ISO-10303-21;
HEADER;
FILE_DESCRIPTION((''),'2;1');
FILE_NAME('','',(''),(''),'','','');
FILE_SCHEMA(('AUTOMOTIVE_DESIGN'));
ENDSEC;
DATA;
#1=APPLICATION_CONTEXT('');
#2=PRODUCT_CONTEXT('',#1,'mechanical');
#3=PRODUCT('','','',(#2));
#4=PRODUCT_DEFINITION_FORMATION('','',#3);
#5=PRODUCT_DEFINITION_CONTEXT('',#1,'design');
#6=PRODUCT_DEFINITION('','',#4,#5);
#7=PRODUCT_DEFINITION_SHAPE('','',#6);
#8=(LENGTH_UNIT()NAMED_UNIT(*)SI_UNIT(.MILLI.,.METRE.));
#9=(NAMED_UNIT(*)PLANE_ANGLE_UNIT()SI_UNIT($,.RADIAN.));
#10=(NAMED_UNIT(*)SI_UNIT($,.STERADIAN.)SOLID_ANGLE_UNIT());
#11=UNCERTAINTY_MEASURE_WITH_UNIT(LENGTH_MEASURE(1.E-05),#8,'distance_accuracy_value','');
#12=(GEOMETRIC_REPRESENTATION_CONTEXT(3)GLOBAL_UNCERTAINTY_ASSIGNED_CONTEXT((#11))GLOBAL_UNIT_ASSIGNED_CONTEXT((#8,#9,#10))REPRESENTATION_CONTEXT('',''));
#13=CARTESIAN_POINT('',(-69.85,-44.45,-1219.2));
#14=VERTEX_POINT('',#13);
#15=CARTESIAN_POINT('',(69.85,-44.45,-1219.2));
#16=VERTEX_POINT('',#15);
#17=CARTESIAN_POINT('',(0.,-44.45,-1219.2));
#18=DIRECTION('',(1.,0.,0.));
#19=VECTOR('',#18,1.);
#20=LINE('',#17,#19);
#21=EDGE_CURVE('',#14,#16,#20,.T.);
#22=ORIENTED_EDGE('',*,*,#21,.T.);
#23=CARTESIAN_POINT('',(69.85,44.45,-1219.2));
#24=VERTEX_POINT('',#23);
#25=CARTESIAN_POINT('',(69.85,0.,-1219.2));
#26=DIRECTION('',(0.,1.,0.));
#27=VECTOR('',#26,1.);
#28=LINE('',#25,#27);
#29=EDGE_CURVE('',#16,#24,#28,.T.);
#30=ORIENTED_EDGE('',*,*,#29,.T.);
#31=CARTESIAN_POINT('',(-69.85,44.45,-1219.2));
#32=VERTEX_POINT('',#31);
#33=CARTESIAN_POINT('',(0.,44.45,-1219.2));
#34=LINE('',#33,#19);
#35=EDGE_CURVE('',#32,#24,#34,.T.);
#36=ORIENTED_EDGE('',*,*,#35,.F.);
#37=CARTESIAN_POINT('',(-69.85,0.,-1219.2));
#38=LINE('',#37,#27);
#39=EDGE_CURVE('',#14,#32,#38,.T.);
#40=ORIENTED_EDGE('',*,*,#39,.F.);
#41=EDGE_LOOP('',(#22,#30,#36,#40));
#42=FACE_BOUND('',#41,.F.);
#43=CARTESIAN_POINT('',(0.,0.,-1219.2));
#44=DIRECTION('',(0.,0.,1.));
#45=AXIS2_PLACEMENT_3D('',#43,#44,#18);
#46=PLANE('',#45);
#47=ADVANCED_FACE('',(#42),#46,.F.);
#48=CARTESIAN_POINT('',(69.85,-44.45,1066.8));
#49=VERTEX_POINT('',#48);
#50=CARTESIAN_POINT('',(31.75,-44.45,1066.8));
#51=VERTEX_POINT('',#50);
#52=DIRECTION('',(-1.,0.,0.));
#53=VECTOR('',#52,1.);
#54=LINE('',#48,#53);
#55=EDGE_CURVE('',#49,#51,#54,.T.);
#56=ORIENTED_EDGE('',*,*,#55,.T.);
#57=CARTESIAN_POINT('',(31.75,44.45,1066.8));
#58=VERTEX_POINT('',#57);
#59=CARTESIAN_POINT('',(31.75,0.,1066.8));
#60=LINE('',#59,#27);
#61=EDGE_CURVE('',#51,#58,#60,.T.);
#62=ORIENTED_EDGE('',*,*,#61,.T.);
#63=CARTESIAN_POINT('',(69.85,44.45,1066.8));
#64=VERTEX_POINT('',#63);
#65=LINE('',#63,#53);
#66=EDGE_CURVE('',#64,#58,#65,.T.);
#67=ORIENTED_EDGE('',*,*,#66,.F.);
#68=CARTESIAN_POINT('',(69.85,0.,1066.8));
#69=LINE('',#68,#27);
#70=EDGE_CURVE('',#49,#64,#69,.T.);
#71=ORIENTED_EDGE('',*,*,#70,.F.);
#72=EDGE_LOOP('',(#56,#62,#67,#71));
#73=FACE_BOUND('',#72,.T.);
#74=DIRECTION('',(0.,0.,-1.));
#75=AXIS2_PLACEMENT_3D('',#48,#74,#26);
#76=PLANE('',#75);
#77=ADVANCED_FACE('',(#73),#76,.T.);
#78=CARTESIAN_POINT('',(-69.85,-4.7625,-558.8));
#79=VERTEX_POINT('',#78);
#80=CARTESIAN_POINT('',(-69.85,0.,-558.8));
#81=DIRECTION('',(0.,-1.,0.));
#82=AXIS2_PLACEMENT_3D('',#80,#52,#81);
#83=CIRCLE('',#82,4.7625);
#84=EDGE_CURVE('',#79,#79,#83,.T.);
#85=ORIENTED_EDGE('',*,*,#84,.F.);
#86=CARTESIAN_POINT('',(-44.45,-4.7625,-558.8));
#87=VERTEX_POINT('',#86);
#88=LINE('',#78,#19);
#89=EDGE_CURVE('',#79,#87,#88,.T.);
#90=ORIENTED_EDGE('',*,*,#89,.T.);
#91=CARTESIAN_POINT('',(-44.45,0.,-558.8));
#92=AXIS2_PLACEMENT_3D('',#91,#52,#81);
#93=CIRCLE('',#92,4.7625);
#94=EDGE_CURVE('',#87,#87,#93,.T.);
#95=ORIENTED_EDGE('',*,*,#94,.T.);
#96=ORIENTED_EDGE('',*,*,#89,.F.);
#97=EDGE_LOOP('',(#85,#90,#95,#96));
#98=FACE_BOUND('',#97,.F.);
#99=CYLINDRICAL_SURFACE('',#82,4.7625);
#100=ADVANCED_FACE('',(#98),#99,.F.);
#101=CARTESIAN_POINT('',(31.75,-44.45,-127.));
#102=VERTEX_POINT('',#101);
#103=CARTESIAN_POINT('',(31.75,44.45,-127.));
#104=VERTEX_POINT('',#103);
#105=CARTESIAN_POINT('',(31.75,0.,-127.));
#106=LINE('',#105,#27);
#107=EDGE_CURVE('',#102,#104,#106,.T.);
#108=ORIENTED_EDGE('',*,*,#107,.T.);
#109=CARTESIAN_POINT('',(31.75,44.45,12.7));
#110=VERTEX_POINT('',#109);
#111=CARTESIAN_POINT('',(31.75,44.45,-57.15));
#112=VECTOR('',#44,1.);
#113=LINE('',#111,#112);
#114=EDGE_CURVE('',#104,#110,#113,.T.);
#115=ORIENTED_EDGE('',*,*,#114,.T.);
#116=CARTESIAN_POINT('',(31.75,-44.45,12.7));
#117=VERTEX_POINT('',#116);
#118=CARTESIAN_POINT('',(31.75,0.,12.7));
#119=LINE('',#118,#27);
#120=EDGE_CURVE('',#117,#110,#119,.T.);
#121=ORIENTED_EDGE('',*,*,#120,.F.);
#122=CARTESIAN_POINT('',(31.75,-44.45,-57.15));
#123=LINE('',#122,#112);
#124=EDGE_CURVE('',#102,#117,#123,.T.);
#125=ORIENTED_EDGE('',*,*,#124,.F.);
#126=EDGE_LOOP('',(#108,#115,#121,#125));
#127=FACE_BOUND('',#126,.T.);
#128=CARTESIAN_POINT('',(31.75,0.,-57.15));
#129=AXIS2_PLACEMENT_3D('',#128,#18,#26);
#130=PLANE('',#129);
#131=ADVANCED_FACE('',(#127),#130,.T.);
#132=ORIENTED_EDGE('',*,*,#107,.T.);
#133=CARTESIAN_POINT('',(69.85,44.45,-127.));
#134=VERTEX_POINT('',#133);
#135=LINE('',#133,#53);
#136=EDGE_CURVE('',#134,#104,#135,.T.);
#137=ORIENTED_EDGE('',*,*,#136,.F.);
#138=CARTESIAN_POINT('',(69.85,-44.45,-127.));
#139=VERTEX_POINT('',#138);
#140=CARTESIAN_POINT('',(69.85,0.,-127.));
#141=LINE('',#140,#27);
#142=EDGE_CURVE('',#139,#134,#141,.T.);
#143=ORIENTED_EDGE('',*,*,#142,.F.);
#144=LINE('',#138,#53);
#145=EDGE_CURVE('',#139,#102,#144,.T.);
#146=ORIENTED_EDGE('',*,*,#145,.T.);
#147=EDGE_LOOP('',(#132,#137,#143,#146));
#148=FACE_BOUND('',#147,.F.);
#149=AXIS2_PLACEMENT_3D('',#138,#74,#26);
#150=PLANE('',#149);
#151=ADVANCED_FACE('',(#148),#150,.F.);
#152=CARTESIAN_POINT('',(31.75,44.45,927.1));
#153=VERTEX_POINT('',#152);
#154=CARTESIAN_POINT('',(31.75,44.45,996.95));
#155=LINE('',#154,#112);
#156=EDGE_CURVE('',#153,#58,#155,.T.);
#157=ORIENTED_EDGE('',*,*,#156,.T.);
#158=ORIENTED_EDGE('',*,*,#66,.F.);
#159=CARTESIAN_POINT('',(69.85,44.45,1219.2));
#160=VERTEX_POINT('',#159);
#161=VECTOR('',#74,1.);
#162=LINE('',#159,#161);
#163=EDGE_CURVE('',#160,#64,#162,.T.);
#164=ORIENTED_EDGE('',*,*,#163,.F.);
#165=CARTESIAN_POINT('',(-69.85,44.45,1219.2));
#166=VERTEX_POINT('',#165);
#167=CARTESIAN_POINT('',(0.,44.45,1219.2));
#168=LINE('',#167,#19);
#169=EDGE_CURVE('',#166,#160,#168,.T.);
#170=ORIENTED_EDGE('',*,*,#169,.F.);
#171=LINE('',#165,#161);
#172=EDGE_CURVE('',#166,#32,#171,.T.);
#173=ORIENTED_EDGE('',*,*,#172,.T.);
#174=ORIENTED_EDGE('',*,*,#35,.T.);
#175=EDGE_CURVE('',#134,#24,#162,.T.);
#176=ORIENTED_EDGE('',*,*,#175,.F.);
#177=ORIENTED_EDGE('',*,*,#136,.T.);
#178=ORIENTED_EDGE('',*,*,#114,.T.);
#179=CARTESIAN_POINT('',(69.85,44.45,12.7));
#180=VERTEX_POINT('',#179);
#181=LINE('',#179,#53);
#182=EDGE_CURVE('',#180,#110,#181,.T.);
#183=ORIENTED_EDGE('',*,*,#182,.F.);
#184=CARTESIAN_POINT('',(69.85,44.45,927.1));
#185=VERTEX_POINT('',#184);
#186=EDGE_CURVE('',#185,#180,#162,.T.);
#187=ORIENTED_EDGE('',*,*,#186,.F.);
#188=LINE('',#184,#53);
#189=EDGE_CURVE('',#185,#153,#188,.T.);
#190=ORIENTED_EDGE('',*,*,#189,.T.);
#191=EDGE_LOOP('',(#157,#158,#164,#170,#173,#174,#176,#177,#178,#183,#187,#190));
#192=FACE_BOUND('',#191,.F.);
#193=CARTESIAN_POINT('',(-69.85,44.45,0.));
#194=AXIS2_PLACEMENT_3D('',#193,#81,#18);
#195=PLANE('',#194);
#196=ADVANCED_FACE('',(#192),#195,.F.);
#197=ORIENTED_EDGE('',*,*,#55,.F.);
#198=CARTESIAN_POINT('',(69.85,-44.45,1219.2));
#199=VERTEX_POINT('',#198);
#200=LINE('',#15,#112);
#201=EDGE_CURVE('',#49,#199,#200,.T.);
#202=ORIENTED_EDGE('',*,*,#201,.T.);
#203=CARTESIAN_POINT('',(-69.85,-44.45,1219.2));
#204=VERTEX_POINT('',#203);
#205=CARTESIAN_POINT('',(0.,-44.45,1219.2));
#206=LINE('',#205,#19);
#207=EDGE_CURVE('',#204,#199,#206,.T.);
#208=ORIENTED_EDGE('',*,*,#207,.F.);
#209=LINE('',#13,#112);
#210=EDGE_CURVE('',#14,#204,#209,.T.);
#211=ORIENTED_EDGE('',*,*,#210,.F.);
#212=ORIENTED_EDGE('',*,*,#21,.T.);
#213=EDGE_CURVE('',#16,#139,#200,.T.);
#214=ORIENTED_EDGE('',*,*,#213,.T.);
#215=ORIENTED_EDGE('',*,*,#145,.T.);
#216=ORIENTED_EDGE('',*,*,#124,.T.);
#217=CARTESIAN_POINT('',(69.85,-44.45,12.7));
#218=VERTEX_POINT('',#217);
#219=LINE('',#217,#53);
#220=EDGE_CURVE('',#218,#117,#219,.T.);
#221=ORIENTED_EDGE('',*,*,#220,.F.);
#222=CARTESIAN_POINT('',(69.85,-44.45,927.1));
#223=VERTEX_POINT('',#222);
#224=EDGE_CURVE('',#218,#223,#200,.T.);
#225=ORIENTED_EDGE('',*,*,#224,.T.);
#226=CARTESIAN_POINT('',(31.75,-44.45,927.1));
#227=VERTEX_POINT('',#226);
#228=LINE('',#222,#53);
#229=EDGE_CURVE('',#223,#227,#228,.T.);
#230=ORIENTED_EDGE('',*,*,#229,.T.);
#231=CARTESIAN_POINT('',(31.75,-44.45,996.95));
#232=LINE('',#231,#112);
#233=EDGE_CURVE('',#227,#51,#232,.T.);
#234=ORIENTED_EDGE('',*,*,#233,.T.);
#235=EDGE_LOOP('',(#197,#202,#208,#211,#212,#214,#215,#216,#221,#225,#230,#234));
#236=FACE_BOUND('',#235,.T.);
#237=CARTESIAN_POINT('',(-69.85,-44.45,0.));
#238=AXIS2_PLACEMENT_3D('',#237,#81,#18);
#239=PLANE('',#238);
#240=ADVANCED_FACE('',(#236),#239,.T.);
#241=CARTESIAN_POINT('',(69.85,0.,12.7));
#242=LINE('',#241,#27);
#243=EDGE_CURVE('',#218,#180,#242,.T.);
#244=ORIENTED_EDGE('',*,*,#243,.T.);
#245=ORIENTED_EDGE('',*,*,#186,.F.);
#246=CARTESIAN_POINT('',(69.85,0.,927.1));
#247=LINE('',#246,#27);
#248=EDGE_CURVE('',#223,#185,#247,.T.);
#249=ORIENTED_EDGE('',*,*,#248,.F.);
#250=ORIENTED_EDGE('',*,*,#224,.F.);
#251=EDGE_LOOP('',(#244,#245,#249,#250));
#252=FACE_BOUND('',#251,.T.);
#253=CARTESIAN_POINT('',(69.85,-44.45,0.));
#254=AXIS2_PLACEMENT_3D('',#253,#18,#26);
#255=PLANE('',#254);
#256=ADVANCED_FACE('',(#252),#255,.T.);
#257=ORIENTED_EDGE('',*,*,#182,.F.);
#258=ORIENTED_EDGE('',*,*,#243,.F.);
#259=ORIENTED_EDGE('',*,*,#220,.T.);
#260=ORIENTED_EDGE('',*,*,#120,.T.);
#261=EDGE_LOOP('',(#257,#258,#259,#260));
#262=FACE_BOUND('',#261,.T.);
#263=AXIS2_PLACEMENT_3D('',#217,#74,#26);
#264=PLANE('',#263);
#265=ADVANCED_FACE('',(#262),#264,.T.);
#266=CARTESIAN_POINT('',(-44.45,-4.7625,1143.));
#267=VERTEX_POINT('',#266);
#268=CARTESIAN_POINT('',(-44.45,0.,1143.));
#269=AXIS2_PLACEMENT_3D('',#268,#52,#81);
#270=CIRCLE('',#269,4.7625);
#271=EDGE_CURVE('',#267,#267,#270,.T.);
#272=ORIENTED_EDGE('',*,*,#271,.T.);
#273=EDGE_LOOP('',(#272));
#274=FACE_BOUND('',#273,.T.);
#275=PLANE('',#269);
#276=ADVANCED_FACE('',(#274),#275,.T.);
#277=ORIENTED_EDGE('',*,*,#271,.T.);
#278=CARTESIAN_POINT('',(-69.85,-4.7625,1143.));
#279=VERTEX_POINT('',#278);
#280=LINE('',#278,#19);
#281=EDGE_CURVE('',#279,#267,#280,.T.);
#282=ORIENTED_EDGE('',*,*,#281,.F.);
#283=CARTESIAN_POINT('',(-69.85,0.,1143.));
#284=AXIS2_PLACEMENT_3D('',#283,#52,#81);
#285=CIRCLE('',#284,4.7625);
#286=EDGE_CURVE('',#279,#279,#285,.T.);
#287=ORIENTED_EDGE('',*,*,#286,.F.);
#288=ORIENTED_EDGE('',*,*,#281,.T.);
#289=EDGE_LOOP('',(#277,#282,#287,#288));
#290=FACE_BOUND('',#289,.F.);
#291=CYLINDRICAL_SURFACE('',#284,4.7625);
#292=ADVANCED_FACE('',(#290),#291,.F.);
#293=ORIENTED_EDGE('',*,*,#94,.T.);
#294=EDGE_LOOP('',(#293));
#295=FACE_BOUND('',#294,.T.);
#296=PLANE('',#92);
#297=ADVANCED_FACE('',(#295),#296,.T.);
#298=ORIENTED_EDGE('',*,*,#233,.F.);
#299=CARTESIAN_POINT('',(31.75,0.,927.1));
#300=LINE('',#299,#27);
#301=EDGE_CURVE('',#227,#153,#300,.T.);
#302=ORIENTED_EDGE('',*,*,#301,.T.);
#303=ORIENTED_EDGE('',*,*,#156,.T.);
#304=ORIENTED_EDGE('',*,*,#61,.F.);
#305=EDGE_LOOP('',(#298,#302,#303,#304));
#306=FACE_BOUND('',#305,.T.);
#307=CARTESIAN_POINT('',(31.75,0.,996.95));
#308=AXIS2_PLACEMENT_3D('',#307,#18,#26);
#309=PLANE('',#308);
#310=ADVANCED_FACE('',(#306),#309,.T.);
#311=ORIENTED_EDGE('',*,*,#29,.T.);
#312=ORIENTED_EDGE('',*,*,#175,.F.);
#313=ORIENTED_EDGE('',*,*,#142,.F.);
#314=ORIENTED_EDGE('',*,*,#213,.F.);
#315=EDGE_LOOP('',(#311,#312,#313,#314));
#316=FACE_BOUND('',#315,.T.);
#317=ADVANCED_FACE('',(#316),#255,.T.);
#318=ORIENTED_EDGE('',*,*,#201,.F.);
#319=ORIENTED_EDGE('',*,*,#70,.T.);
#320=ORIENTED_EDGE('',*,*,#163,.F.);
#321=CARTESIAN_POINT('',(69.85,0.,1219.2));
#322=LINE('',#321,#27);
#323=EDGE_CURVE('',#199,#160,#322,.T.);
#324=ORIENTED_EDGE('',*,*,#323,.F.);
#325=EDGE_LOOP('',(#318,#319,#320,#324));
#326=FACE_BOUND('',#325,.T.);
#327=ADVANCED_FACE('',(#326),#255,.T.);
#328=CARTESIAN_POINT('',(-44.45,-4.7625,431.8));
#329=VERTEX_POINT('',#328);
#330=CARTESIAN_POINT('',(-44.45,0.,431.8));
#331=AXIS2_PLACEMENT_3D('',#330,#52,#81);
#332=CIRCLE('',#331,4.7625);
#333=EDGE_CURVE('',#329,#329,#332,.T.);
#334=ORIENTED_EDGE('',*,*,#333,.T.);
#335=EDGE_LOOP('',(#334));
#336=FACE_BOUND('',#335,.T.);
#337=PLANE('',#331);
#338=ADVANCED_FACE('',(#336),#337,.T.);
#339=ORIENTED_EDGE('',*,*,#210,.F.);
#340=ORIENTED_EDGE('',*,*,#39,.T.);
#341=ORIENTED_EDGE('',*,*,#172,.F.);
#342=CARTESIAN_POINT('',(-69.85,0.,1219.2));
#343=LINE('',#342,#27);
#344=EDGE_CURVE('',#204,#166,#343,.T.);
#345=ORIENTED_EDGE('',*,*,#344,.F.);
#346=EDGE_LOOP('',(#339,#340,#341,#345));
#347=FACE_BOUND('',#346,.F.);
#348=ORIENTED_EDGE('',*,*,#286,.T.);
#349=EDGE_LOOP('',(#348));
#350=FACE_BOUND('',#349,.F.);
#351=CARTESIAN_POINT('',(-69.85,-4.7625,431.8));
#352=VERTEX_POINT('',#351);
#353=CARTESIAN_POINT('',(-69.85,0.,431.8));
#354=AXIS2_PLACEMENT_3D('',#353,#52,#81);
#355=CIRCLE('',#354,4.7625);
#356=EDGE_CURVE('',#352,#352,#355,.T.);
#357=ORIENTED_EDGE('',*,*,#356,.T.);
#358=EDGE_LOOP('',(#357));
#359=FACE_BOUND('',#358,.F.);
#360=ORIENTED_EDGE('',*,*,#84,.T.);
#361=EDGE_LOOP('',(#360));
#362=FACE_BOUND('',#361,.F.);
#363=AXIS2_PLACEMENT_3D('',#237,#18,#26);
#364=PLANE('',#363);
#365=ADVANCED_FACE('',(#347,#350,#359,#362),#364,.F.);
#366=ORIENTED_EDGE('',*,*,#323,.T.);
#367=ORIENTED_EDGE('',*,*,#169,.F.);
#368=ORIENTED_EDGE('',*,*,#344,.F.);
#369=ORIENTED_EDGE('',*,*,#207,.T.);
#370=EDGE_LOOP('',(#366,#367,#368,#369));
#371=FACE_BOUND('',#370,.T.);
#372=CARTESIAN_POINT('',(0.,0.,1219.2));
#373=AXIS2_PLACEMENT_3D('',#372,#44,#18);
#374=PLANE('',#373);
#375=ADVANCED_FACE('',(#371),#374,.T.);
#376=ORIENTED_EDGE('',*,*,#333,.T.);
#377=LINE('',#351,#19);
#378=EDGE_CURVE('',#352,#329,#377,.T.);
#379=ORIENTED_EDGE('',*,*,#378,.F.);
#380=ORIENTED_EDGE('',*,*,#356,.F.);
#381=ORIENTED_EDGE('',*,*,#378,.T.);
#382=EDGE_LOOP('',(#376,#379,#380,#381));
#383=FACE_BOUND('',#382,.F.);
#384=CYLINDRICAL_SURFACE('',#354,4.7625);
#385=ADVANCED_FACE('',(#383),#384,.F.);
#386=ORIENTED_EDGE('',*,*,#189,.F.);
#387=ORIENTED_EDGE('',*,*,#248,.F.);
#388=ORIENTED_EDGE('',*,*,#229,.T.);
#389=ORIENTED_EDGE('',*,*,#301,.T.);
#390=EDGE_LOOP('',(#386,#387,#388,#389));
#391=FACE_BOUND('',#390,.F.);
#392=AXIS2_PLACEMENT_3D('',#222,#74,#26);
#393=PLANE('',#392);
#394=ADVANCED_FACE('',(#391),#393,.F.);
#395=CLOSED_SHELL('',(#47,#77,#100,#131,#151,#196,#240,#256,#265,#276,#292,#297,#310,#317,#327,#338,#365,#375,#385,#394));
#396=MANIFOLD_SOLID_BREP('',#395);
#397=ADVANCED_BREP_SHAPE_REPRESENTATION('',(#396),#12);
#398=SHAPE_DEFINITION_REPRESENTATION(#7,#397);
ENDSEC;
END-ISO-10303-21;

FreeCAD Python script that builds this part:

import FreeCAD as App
import Part
import Sketcher
Q = App.Units.Quantity

doc = App.newDocument("Part")
body = doc.addObject("PartDesign::Body", "Body")

# Sketch on XY plane
sketch1 = body.newObject("Sketcher::SketchObject", "Sketch")
sketch1.AttachmentSupport = (doc.getObject("XY_Plane"), [""])
sketch1.MapMode = "FlatFace"
sketch1.addGeometry([
    Part.LineSegment(App.Vector(-70, 44, 0), App.Vector(-70, -44, 0)),
    Part.LineSegment(App.Vector(-70, -44, 0), App.Vector(70, -44, 0)),
    Part.LineSegment(App.Vector(70, -44, 0), App.Vector(70, 44, 0)),
    Part.LineSegment(App.Vector(70, 44, 0), App.Vector(-70, 44, 0)),
], False)
sketch1.addConstraint([
    Sketcher.Constraint("Coincident", 0, 2, 1, 1),
    Sketcher.Constraint("Coincident", 1, 2, 2, 1),
    Sketcher.Constraint("Coincident", 2, 2, 3, 1),
    Sketcher.Constraint("Coincident", 3, 2, 0, 1),
    Sketcher.Constraint("Vertical", 0),
    Sketcher.Constraint("Horizontal", 1),
    Sketcher.Constraint("Vertical", 2),
    Sketcher.Constraint("Horizontal", 3),
    Sketcher.Constraint("Symmetric", 0, 2, 2, 2, -1, 1),
    Sketcher.Constraint("DistanceX", 1, 1, 1, 2, Q("5.5 in")),
    Sketcher.Constraint("DistanceY", 0, 2, 0, 1, Q("3.5 in")),
])
pad1 = body.newObject("PartDesign::Pad", "Pad")
pad1.Profile = sketch1
pad1.Length = Q("96 in")
pad1.Midplane = True

# Sketch on YZ plane
sketch2 = body.newObject("Sketcher::SketchObject", "Sketch001")
sketch2.AttachmentSupport = (doc.getObject("YZ_Plane"), [""])
sketch2.MapMode = "FlatFace"
sketch2.AttachmentOffset = App.Placement(App.Vector(0, 0, 2.75 * 25.4), App.Rotation())
sketch2.addGeometry([
    Part.LineSegment(App.Vector(-44, 1067, 0), App.Vector(-44, 927, 0)),  # 0
    Part.LineSegment(App.Vector(-44, 927, 0), App.Vector(44, 927, 0)),  # 1
    Part.LineSegment(App.Vector(44, 927, 0), App.Vector(44, 1067, 0)),  # 2
    Part.LineSegment(App.Vector(44, 1067, 0), App.Vector(-44, 1067, 0)),  # 3
    Part.LineSegment(App.Vector(-44, 13, 0), App.Vector(-44, -127, 0)),  # 4
    Part.LineSegment(App.Vector(-44, -127, 0), App.Vector(44, -127, 0)),  # 5
    Part.LineSegment(App.Vector(44, -127, 0), App.Vector(44, 13, 0)),  # 6
    Part.LineSegment(App.Vector(44, 13, 0), App.Vector(-44, 13, 0)),  # 7
], False)
sketch2.addConstraint([
    Sketcher.Constraint("Coincident", 0, 2, 1, 1),
    Sketcher.Constraint("Coincident", 1, 2, 2, 1),
    Sketcher.Constraint("Coincident", 2, 2, 3, 1),
    Sketcher.Constraint("Coincident", 3, 2, 0, 1),
    Sketcher.Constraint("Coincident", 4, 2, 5, 1),
    Sketcher.Constraint("Coincident", 5, 2, 6, 1),
    Sketcher.Constraint("Coincident", 6, 2, 7, 1),
    Sketcher.Constraint("Coincident", 7, 2, 4, 1),
    Sketcher.Constraint("Vertical", 0),
    Sketcher.Constraint("Horizontal", 1),
    Sketcher.Constraint("Vertical", 2),
    Sketcher.Constraint("Horizontal", 3),
    Sketcher.Constraint("Vertical", 4),
    Sketcher.Constraint("Horizontal", 5),
    Sketcher.Constraint("Vertical", 6),
    Sketcher.Constraint("Horizontal", 7),
    Sketcher.Constraint("Vertical", 3, 2, 4, 2),
    Sketcher.Constraint("Vertical", 2, 2, 5, 2),
    Sketcher.Constraint("Equal", 2, 4),
    Sketcher.Constraint("DistanceX", 1, 1, 1, 2, Q("3.5 in")),
    Sketcher.Constraint("DistanceY", 0, 2, 0, 1, Q("5.5 in")),
    Sketcher.Constraint("DistanceY", -1, 1, 2, 2, Q("42 in")),
    Sketcher.Constraint("DistanceY", 4, 2, -1, 1, Q("5 in")),
    Sketcher.Constraint("DistanceX", 0, 2, -1, 1, Q("1.75 in")),
])
pocket1 = body.newObject("PartDesign::Pocket", "Pocket")
pocket1.Profile = sketch2
pocket1.Length = Q("1.5 in")

# Sketch on YZ plane
sketch3 = body.newObject("Sketcher::SketchObject", "Sketch002")
sketch3.AttachmentSupport = (doc.getObject("YZ_Plane"), [""])
sketch3.MapMode = "FlatFace"
sketch3.AttachmentOffset = App.Placement(App.Vector(0, 0, -2.75 * 25.4), App.Rotation())
sketch3.addGeometry([
    Part.Circle(App.Vector(0, -558.8, 0), App.Vector(0, 0, 1), 4.8),
    Part.Circle(App.Vector(0, 431.8, 0), App.Vector(0, 0, 1), 4.8),
    Part.Circle(App.Vector(0, 1143, 0), App.Vector(0, 0, 1), 4.8),
], False)
sketch3.addConstraint([
    Sketcher.Constraint("Equal", 0, 1),
    Sketcher.Constraint("Equal", 1, 2),
    Sketcher.Constraint("PointOnObject", 0, 3, -2),
    Sketcher.Constraint("PointOnObject", 1, 3, -2),
    Sketcher.Constraint("PointOnObject", 2, 3, -2),
    Sketcher.Constraint("Diameter", 0, Q("0.375 in")),
    Sketcher.Constraint("DistanceY", 0, 3, -1, 1, Q("22 in")),
    Sketcher.Constraint("DistanceY", -1, 1, 1, 3, Q("17 in")),
    Sketcher.Constraint("DistanceY", -1, 1, 2, 3, Q("45 in")),
])
pocket2 = body.newObject("PartDesign::Pocket", "Pocket001")
pocket2.Profile = sketch3
pocket2.Length = Q("1 in")
pocket2.Reversed = True

doc.recompute()
